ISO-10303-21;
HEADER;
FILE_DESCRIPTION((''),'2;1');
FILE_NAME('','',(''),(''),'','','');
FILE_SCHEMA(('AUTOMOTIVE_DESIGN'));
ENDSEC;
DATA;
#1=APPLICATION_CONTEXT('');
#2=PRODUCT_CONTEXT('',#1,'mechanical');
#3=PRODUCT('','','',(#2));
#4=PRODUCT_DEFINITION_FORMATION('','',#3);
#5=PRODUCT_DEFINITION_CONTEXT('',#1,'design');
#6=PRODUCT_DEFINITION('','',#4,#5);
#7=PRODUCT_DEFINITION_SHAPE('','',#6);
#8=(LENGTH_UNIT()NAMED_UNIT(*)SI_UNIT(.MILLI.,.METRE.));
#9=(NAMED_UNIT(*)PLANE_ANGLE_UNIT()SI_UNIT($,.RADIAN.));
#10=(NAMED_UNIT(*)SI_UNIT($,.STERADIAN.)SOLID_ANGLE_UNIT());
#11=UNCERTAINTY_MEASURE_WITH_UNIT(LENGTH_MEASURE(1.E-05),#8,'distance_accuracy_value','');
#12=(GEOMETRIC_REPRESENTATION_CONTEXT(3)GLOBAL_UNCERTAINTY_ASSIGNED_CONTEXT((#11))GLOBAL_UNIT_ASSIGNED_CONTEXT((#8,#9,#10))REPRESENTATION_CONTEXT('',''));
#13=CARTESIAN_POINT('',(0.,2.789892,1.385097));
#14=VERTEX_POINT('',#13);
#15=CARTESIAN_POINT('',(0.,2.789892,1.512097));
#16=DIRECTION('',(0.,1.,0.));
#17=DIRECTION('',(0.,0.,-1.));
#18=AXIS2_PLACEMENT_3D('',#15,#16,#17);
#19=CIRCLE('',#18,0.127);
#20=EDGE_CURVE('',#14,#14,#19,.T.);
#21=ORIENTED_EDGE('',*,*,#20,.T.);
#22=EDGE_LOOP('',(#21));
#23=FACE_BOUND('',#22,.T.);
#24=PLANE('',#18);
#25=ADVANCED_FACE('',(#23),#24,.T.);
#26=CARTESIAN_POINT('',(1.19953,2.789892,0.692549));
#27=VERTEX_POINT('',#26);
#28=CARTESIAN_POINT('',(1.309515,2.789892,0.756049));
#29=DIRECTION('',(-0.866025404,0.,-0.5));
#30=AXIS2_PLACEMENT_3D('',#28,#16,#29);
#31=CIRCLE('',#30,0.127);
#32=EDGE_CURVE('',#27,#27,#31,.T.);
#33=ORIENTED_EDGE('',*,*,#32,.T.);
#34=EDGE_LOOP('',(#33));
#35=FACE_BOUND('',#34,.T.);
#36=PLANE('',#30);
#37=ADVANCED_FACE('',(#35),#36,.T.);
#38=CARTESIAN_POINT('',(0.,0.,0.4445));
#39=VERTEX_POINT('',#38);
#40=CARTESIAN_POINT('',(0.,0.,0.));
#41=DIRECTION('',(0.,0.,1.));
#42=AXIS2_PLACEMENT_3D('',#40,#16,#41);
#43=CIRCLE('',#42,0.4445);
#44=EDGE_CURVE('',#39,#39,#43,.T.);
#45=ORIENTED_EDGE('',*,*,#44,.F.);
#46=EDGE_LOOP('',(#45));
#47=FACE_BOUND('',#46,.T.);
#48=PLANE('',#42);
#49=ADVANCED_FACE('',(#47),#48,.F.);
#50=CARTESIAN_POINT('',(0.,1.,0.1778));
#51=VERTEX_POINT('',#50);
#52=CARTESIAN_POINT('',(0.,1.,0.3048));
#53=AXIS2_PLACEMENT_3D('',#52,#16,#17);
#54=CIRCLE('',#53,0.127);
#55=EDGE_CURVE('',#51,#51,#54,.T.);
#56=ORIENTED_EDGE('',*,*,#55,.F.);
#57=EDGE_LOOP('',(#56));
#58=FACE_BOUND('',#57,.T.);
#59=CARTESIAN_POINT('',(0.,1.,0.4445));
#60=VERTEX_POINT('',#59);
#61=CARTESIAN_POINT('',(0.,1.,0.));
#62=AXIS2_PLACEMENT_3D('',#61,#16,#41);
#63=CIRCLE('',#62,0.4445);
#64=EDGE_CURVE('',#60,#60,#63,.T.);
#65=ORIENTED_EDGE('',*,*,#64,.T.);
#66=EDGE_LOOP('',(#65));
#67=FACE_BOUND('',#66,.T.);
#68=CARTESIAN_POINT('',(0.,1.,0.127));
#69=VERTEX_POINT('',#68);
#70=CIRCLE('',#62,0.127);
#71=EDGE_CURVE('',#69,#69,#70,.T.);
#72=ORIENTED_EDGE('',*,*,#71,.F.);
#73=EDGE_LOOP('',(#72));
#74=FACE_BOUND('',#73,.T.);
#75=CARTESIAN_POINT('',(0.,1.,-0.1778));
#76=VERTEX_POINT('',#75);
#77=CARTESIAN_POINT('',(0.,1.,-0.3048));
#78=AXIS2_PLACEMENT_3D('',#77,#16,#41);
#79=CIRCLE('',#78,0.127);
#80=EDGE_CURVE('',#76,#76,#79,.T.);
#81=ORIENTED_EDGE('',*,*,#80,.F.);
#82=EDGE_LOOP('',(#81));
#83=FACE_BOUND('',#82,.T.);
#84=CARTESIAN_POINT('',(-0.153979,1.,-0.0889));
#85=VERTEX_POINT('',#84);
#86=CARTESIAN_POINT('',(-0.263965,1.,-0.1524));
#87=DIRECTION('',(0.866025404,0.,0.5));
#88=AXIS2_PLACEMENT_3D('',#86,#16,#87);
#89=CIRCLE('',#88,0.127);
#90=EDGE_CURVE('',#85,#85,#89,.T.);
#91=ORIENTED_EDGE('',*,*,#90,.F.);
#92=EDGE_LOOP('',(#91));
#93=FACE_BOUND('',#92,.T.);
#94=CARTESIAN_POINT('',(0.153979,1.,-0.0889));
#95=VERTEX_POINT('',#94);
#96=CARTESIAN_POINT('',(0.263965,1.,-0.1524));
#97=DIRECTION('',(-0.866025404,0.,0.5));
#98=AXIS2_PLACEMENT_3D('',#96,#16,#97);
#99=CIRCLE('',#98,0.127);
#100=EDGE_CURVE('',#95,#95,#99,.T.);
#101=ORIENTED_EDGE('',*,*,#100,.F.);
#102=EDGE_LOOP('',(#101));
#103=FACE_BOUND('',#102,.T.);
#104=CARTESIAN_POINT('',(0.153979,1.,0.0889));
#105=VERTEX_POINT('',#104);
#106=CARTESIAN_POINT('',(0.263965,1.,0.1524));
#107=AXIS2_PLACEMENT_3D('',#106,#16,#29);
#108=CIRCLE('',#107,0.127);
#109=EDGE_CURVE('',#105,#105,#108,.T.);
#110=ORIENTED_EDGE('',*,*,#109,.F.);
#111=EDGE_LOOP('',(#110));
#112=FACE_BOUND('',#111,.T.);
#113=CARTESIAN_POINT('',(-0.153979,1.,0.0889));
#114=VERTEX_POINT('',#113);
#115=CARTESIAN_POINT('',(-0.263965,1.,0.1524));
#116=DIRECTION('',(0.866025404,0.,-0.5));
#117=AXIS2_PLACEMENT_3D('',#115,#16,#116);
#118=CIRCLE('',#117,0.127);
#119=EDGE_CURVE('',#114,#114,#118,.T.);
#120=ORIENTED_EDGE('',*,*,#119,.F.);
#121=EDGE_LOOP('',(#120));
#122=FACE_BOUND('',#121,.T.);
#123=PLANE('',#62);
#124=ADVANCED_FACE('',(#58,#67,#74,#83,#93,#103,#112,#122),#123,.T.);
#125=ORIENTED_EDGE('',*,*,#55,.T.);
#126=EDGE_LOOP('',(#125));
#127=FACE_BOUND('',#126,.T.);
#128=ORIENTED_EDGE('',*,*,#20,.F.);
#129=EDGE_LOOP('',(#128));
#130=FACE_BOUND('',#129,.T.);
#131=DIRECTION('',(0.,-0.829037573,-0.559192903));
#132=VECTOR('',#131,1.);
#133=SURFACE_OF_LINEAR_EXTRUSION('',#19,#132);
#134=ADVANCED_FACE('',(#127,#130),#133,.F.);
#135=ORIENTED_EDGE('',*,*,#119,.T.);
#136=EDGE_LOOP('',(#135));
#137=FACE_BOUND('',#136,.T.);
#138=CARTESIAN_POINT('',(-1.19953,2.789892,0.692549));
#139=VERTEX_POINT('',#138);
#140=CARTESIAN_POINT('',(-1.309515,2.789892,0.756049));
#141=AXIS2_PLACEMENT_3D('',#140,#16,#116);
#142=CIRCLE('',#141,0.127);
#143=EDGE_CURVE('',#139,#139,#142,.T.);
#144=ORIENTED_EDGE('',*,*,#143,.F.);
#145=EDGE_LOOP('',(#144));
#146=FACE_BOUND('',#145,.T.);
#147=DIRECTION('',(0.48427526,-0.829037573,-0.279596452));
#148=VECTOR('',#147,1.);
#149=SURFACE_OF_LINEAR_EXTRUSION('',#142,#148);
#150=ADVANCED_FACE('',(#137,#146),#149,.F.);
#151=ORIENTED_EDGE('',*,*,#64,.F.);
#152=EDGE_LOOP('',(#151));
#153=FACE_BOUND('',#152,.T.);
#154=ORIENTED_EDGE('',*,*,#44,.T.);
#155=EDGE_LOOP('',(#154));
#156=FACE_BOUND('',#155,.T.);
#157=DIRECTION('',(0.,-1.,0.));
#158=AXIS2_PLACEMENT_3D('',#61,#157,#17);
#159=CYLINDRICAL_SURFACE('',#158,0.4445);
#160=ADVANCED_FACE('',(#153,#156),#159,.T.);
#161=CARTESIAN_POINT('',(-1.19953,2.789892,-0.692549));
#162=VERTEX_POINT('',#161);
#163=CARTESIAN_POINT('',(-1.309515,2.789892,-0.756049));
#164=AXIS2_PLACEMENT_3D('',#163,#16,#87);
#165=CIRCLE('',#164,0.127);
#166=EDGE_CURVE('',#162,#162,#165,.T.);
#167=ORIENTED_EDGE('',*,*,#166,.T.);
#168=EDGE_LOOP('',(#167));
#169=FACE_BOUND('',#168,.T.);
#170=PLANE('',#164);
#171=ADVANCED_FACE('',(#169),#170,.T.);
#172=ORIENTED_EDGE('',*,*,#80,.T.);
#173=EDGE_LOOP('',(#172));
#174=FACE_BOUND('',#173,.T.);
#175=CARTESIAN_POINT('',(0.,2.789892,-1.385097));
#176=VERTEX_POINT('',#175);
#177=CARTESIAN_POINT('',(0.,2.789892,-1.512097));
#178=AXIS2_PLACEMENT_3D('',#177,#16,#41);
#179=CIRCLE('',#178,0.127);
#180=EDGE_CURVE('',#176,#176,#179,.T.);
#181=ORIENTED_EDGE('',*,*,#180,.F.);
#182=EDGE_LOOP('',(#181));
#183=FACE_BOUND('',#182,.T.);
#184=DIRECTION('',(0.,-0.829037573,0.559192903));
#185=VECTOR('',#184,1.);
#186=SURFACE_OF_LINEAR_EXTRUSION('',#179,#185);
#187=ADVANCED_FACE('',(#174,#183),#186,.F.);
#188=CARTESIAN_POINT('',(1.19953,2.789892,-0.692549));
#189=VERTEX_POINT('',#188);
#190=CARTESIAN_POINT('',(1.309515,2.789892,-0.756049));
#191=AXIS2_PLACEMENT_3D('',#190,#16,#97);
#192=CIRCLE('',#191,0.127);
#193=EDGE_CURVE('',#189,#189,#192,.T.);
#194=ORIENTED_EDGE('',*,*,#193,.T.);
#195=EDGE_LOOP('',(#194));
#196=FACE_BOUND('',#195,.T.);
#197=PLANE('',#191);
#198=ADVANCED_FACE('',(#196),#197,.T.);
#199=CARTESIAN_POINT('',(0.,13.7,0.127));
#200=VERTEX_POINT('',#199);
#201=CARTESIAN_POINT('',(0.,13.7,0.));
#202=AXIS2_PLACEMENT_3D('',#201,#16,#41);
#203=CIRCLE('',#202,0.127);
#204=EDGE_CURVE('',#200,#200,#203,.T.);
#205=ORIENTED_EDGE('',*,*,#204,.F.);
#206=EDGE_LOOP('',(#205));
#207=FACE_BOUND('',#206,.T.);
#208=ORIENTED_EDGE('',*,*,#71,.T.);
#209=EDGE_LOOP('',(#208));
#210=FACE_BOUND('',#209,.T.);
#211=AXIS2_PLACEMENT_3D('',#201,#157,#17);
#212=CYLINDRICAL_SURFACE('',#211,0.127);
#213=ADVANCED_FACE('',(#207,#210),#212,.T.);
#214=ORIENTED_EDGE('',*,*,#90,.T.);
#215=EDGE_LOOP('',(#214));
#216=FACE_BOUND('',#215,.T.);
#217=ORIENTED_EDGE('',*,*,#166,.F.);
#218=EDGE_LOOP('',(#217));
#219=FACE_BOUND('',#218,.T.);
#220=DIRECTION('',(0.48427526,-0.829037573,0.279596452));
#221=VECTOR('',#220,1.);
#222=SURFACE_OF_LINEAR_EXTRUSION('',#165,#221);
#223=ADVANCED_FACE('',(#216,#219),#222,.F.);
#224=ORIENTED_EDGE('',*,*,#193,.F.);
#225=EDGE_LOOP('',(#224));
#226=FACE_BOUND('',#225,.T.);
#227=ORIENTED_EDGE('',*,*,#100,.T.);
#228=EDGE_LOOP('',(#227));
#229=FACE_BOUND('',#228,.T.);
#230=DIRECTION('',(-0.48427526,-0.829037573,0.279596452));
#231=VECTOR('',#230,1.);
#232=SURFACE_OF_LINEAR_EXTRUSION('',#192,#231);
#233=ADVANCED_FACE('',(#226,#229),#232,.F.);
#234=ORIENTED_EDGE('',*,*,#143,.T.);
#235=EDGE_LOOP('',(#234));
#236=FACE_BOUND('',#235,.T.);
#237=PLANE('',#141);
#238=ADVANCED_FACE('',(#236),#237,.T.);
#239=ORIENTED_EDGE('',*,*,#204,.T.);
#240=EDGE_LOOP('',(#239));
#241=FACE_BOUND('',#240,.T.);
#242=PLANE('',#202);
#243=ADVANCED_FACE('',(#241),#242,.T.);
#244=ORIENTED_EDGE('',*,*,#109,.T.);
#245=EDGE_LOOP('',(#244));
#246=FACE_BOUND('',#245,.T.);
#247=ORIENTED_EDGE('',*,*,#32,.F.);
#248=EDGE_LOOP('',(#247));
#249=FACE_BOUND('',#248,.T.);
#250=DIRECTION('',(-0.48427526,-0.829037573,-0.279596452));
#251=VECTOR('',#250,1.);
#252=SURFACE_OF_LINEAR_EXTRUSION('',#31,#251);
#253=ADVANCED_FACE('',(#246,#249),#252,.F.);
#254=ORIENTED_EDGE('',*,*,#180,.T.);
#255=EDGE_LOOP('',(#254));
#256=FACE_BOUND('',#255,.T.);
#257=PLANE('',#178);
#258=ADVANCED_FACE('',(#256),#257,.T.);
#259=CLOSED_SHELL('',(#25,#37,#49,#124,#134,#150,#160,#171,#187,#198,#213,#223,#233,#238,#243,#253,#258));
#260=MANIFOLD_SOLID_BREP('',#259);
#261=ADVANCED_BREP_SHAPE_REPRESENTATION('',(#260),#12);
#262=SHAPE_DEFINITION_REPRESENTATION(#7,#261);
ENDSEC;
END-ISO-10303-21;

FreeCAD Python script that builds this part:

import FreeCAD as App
import Part
import Sketcher
from FreeCAD import Vector
Q = App.Units.Quantity

doc = App.newDocument("Part")
body = doc.addObject("PartDesign::Body", "Body")

# Sketch on XZ plane
sketch1 = body.newObject("Sketcher::SketchObject", "Sketch")
sketch1.AttachmentSupport = (doc.getObject("XZ_Plane"), [""])
sketch1.MapMode = "FlatFace"
sketch1.addGeometry(Part.Circle(Vector(0, 0, 0), Vector(0, 0, 1), 0.44), False)
sketch1.addConstraint([
    Sketcher.Constraint("Coincident", 0, 3, -1, 1),
    Sketcher.Constraint("Diameter", 0, Q("0.035 in")),
])
pad1 = body.newObject("PartDesign::Pad", "Pad")
pad1.Profile = sketch1
pad1.Length = 1
pad1.Reversed = True

# Sketch on XZ plane
sketch2 = body.newObject("Sketcher::SketchObject", "Sketch001")
sketch2.AttachmentSupport = (doc.getObject("XZ_Plane"), [""])
sketch2.MapMode = "FlatFace"
sketch2.AttachmentOffset = App.Placement(Vector(0, 0, -1), App.Rotation())
sketch2.addGeometry(Part.Circle(Vector(0, 0, 0), Vector(0, 0, 1), 0.13), False)
sketch2.addConstraint([
    Sketcher.Constraint("Coincident", 0, 3, -1, 1),
    Sketcher.Constraint("Diameter", 0, Q("0.01 in")),
])
pad2 = body.newObject("PartDesign::Pad", "Pad001")
pad2.Profile = sketch2
pad2.Length = Q("0.5 in")
pad2.Reversed = True

# Sketch on XZ plane
sketch3 = body.newObject("Sketcher::SketchObject", "Sketch002")
sketch3.AttachmentSupport = (doc.getObject("XZ_Plane"), [""])
sketch3.MapMode = "FlatFace"
sketch3.AttachmentOffset = App.Placement(Vector(0, 0, -1), App.Rotation())
sketch3.addGeometry(Part.Circle(Vector(0, -0.3, 0), Vector(0, 0, 1), 0.13), False)
sketch3.addConstraint([
    Sketcher.Constraint("PointOnObject", 0, 3, -2),
    Sketcher.Constraint("Diameter", 0, Q("0.01 in")),
    Sketcher.Constraint("DistanceY", 0, 3, -1, 1, Q("0.012 in")),
])

# Sketch on an angled plane
sketch4 = body.newObject("Sketcher::SketchObject", "Sketch003")
sketch4.Placement = App.Placement(Vector(0, 0.171394, 0.254102), App.Rotation(Vector(0, 0.829037572, -0.559192904), Vector(1, 0, 0), Vector(0, -0.559192904, -0.829037572), "ZXY"))
sketch4.addGeometry(Part.LineSegment(Vector(1, 0, 0), Vector(3.2, 0, 0)), False)
sketch4.addConstraint([
    Sketcher.Constraint("Horizontal", 0),
    Sketcher.Constraint("PointOnObject", 0, 1, -1),
    Sketcher.Constraint("DistanceX", 0, 1, 0, 2, Q("0.085 in")),
    Sketcher.Constraint("DistanceX", -1, 1, 0, 1, Q("0.99948 mm")),
])
doc.recompute()

additivepipe = body.newObject("PartDesign::AdditivePipe", "AdditivePipe")
additivepipe.Profile = sketch3
additivepipe.Spine = (sketch4, ["Edge1"])
doc.recompute()

polarpattern = body.newObject("PartDesign::PolarPattern", "PolarPattern")
polarpattern.Originals = [additivepipe]
polarpattern.Axis = (doc.getObject("Y_Axis"), [""])
polarpattern.Angle = 360
polarpattern.Occurrences = 6
body.Tip = polarpattern

doc.recompute()
